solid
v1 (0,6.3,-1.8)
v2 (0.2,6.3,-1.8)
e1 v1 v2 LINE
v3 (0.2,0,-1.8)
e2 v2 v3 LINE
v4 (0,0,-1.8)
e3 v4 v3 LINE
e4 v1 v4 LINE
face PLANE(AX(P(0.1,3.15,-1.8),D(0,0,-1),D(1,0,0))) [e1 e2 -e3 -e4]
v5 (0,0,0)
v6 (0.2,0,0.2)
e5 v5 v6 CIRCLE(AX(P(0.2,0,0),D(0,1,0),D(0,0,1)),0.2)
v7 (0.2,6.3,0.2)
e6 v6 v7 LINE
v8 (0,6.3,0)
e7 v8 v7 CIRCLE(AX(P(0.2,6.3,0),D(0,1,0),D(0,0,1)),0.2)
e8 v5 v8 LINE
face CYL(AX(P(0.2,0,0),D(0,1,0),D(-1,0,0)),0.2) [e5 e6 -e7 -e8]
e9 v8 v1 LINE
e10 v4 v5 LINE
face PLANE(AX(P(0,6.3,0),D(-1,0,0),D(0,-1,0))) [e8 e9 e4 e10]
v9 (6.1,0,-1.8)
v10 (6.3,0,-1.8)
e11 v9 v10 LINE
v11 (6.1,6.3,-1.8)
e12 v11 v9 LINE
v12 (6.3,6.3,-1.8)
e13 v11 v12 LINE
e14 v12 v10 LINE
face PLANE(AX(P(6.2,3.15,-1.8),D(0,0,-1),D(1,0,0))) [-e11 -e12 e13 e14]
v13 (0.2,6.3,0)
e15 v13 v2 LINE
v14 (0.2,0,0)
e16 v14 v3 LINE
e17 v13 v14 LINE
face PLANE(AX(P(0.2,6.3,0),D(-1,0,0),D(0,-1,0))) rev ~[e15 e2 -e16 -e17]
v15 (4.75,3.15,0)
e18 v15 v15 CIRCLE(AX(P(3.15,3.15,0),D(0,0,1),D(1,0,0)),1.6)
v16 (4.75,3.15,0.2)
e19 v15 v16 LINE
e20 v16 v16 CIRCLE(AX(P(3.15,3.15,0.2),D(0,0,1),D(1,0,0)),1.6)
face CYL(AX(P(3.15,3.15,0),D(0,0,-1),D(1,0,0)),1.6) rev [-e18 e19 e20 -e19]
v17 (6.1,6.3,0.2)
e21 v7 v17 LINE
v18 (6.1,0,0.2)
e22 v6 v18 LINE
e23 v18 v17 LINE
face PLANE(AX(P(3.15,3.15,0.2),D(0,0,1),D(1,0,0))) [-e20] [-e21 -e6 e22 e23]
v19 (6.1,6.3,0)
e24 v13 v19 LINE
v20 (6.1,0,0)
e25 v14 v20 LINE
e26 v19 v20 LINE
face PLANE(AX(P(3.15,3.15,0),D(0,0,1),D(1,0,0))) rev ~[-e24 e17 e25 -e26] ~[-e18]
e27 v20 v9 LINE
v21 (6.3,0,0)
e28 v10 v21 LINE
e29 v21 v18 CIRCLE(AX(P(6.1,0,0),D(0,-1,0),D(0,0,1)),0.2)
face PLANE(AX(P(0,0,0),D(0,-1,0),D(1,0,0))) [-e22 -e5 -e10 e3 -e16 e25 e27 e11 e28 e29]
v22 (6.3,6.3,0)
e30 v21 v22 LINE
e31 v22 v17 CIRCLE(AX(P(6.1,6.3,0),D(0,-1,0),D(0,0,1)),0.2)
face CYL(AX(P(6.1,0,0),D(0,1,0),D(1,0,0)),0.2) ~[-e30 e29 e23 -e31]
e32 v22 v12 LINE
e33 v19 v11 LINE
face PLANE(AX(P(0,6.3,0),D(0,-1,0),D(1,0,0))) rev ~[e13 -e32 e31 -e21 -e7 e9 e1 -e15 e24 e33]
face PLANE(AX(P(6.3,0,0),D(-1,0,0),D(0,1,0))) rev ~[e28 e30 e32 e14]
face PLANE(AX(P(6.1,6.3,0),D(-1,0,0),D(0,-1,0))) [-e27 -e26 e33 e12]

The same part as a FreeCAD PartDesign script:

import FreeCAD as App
import Part
import Sketcher
Q = App.Units.Quantity


def edges_at(feature, points):
    """Names of the edges that pass closest to the given points."""
    edges = feature.Shape.Edges
    near = lambda p: min(range(len(edges)), key=lambda i: edges[i].distToShape(Part.Vertex(*p))[0])
    return sorted({f"Edge{near(p) + 1}" for p in points})

doc = App.newDocument("Part")
body = doc.addObject("PartDesign::Body", "Body")

# Sketch on XY plane
sketch1 = body.newObject("Sketcher::SketchObject", "Sketch")
sketch1.AttachmentSupport = (doc.getObject("XY_Plane"), [""])
sketch1.MapMode = "FlatFace"
sketch1.addGeometry([
    Part.LineSegment(App.Vector(0, 6.3, 0), App.Vector(0, 0, 0)),  # 0
    Part.LineSegment(App.Vector(0, 0, 0), App.Vector(6.3, 0, 0)),  # 1
    Part.LineSegment(App.Vector(6.3, 0, 0), App.Vector(6.3, 6.3, 0)),  # 2
    Part.LineSegment(App.Vector(6.3, 6.3, 0), App.Vector(0, 6.3, 0)),  # 3
    Part.Circle(App.Vector(3.1, 3.1, 0), App.Vector(0, 0, 1), 1.6),  # 4
], False)
sketch1.addConstraint([
    Sketcher.Constraint("Coincident", 0, 2, 1, 1),
    Sketcher.Constraint("Coincident", 1, 2, 2, 1),
    Sketcher.Constraint("Coincident", 2, 2, 3, 1),
    Sketcher.Constraint("Coincident", 3, 2, 0, 1),
    Sketcher.Constraint("Vertical", 0),
    Sketcher.Constraint("Horizontal", 1),
    Sketcher.Constraint("Vertical", 2),
    Sketcher.Constraint("Horizontal", 3),
    Sketcher.Constraint("Coincident", 0, 2, -1, 1),
    Sketcher.Constraint("Equal", 3, 0),
    Sketcher.Constraint("Diameter", 4, Q("3.2 mm")),
    Sketcher.Constraint("DistanceX", 1, 1, 1, 2, Q("6.3 mm")),
    Sketcher.Constraint("DistanceX", -1, 1, 4, 3, Q("3.15 mm")),
    Sketcher.Constraint("DistanceY", -1, 1, 4, 3, Q("3.15 mm")),
])
pad1 = body.newObject("PartDesign::Pad", "Pad")
pad1.Profile = sketch1
pad1.Length = 0.2

# Sketch on XY plane
sketch2 = body.newObject("Sketcher::SketchObject", "Sketch001")
sketch2.AttachmentSupport = (doc.getObject("XY_Plane"), [""])
sketch2.MapMode = "FlatFace"
sketch2.addGeometry([
    Part.LineSegment(App.Vector(0, 0, 0), App.Vector(0, 6.3, 0)),  # 0
    Part.LineSegment(App.Vector(0, 6.3, 0), App.Vector(0.2, 6.3, 0)),  # 1
    Part.LineSegment(App.Vector(0.2, 6.3, 0), App.Vector(0.2, 0, 0)),  # 2
    Part.LineSegment(App.Vector(0.2, 0, 0), App.Vector(0, 0, 0)),  # 3
    Part.LineSegment(App.Vector(6.1, 0, 0), App.Vector(6.1, 6.3, 0)),  # 4
    Part.LineSegment(App.Vector(6.1, 6.3, 0), App.Vector(6.3, 6.3, 0)),  # 5
    Part.LineSegment(App.Vector(6.3, 6.3, 0), App.Vector(6.3, 0, 0)),  # 6
    Part.LineSegment(App.Vector(6.3, 0, 0), App.Vector(6.1, 0, 0)),  # 7
], False)
sketch2.addConstraint([
    Sketcher.Constraint("Coincident", 0, 2, 1, 1),
    Sketcher.Constraint("Coincident", 1, 2, 2, 1),
    Sketcher.Constraint("Coincident", 2, 2, 3, 1),
    Sketcher.Constraint("Coincident", 3, 2, 0, 1),
    Sketcher.Constraint("Coincident", 4, 2, 5, 1),
    Sketcher.Constraint("Coincident", 5, 2, 6, 1),
    Sketcher.Constraint("Coincident", 6, 2, 7, 1),
    Sketcher.Constraint("Coincident", 7, 2, 4, 1),
    Sketcher.Constraint("Vertical", 0),
    Sketcher.Constraint("Horizontal", 1),
    Sketcher.Constraint("Vertical", 2),
    Sketcher.Constraint("Horizontal", 3),
    Sketcher.Constraint("Vertical", 4),
    Sketcher.Constraint("Horizontal", 5),
    Sketcher.Constraint("Vertical", 6),
    Sketcher.Constraint("Horizontal", 7),
    Sketcher.Constraint("Coincident", 3, 2, -1, 1),
    Sketcher.Constraint("PointOnObject", 6, 2, -1),
    Sketcher.Constraint("Horizontal", 1, 2, 4, 2),
    Sketcher.Constraint("Equal", 3, 5),
    Sketcher.Constraint("DistanceX", 1, 1, 1, 2, Q("0.2 mm")),
    Sketcher.Constraint("DistanceY", 0, 1, 0, 2, Q("6.3 mm")),
    Sketcher.Constraint("DistanceX", -1, 1, 4, 2, Q("6.1 mm")),
])
pad2 = body.newObject("PartDesign::Pad", "Pad001")
pad2.Profile = sketch2
pad2.Length = 1.8
pad2.Reversed = True
doc.recompute()

fillet = body.newObject("PartDesign::Fillet", "Fillet")
fillet.Base = (pad2, edges_at(pad2, [(0, 3.15, 0.2), (6.3, 3.15, 0.2)]))
fillet.Radius = 0.2

doc.recompute()
